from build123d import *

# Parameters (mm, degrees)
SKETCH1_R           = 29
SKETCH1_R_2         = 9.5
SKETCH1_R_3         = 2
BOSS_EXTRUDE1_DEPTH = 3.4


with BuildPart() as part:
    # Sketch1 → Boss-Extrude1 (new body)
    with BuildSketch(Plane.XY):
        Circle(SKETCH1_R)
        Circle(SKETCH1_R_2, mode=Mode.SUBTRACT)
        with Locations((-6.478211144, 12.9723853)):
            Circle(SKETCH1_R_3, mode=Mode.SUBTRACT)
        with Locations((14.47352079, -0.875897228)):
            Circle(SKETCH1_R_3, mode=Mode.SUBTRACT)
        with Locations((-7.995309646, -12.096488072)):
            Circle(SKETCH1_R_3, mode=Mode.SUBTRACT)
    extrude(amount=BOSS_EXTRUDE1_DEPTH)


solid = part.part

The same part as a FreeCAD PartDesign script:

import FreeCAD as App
import Part
import Sketcher
from FreeCAD import Vector
Q = App.Units.Quantity

doc = App.newDocument("Part")
body = doc.addObject("PartDesign::Body", "Body")

sketch1 = doc.addObject("Sketcher::SketchObject", "Sketch")
body.addObject(sketch1)
sketch1.AttachmentSupport = (doc.XY_Plane, [""])
sketch1.MapMode = "FlatFace"
sketch1.addGeometry([
    Part.Circle(Vector(0, 0, 0), Vector(0, 0, 1), 29),
    Part.Circle(Vector(-8, -12.1, 0), Vector(0, 0, 1), 2),
    Part.Circle(Vector(0, 0, 0), Vector(0, 0, 1), 9.5),
    Part.Circle(Vector(14.5, -0.9, 0), Vector(0, 0, 1), 2),
    Part.Circle(Vector(-6.5, 13, 0), Vector(0, 0, 1), 2),
], False)
sketch1.addConstraint([
    Sketcher.Constraint("Coincident", 0, 3, -1, 1),
    Sketcher.Constraint("Coincident", 2, 3, -1, 1),
    Sketcher.Constraint("Equal", 1, 3),
    Sketcher.Constraint("Equal", 3, 4),
    Sketcher.Constraint("Diameter", 0, Q("58 mm")),
    Sketcher.Constraint("Diameter", 1, Q("4 mm")),
    Sketcher.Constraint("Diameter", 2, Q("19 mm")),
    Sketcher.Constraint("DistanceX", 1, 3, 4, 3, Q("1.517099 mm")),
    Sketcher.Constraint("DistanceX", 1, 3, -1, 1, Q("7.99531 mm")),
    Sketcher.Constraint("DistanceY", 1, 3, -1, 1, Q("12.096488 mm")),
    Sketcher.Constraint("DistanceX", -1, 1, 3, 3, Q("14.473521 mm")),
    Sketcher.Constraint("DistanceY", 1, 3, 3, 3, Q("11.220591 mm")),
    Sketcher.Constraint("DistanceY", -1, 1, 4, 3, Q("12.972385 mm")),
])
pad1 = doc.addObject("PartDesign::Pad", "Pad")
body.addObject(pad1)
pad1.Profile = sketch1
pad1.Length = 3.4

doc.recompute()
